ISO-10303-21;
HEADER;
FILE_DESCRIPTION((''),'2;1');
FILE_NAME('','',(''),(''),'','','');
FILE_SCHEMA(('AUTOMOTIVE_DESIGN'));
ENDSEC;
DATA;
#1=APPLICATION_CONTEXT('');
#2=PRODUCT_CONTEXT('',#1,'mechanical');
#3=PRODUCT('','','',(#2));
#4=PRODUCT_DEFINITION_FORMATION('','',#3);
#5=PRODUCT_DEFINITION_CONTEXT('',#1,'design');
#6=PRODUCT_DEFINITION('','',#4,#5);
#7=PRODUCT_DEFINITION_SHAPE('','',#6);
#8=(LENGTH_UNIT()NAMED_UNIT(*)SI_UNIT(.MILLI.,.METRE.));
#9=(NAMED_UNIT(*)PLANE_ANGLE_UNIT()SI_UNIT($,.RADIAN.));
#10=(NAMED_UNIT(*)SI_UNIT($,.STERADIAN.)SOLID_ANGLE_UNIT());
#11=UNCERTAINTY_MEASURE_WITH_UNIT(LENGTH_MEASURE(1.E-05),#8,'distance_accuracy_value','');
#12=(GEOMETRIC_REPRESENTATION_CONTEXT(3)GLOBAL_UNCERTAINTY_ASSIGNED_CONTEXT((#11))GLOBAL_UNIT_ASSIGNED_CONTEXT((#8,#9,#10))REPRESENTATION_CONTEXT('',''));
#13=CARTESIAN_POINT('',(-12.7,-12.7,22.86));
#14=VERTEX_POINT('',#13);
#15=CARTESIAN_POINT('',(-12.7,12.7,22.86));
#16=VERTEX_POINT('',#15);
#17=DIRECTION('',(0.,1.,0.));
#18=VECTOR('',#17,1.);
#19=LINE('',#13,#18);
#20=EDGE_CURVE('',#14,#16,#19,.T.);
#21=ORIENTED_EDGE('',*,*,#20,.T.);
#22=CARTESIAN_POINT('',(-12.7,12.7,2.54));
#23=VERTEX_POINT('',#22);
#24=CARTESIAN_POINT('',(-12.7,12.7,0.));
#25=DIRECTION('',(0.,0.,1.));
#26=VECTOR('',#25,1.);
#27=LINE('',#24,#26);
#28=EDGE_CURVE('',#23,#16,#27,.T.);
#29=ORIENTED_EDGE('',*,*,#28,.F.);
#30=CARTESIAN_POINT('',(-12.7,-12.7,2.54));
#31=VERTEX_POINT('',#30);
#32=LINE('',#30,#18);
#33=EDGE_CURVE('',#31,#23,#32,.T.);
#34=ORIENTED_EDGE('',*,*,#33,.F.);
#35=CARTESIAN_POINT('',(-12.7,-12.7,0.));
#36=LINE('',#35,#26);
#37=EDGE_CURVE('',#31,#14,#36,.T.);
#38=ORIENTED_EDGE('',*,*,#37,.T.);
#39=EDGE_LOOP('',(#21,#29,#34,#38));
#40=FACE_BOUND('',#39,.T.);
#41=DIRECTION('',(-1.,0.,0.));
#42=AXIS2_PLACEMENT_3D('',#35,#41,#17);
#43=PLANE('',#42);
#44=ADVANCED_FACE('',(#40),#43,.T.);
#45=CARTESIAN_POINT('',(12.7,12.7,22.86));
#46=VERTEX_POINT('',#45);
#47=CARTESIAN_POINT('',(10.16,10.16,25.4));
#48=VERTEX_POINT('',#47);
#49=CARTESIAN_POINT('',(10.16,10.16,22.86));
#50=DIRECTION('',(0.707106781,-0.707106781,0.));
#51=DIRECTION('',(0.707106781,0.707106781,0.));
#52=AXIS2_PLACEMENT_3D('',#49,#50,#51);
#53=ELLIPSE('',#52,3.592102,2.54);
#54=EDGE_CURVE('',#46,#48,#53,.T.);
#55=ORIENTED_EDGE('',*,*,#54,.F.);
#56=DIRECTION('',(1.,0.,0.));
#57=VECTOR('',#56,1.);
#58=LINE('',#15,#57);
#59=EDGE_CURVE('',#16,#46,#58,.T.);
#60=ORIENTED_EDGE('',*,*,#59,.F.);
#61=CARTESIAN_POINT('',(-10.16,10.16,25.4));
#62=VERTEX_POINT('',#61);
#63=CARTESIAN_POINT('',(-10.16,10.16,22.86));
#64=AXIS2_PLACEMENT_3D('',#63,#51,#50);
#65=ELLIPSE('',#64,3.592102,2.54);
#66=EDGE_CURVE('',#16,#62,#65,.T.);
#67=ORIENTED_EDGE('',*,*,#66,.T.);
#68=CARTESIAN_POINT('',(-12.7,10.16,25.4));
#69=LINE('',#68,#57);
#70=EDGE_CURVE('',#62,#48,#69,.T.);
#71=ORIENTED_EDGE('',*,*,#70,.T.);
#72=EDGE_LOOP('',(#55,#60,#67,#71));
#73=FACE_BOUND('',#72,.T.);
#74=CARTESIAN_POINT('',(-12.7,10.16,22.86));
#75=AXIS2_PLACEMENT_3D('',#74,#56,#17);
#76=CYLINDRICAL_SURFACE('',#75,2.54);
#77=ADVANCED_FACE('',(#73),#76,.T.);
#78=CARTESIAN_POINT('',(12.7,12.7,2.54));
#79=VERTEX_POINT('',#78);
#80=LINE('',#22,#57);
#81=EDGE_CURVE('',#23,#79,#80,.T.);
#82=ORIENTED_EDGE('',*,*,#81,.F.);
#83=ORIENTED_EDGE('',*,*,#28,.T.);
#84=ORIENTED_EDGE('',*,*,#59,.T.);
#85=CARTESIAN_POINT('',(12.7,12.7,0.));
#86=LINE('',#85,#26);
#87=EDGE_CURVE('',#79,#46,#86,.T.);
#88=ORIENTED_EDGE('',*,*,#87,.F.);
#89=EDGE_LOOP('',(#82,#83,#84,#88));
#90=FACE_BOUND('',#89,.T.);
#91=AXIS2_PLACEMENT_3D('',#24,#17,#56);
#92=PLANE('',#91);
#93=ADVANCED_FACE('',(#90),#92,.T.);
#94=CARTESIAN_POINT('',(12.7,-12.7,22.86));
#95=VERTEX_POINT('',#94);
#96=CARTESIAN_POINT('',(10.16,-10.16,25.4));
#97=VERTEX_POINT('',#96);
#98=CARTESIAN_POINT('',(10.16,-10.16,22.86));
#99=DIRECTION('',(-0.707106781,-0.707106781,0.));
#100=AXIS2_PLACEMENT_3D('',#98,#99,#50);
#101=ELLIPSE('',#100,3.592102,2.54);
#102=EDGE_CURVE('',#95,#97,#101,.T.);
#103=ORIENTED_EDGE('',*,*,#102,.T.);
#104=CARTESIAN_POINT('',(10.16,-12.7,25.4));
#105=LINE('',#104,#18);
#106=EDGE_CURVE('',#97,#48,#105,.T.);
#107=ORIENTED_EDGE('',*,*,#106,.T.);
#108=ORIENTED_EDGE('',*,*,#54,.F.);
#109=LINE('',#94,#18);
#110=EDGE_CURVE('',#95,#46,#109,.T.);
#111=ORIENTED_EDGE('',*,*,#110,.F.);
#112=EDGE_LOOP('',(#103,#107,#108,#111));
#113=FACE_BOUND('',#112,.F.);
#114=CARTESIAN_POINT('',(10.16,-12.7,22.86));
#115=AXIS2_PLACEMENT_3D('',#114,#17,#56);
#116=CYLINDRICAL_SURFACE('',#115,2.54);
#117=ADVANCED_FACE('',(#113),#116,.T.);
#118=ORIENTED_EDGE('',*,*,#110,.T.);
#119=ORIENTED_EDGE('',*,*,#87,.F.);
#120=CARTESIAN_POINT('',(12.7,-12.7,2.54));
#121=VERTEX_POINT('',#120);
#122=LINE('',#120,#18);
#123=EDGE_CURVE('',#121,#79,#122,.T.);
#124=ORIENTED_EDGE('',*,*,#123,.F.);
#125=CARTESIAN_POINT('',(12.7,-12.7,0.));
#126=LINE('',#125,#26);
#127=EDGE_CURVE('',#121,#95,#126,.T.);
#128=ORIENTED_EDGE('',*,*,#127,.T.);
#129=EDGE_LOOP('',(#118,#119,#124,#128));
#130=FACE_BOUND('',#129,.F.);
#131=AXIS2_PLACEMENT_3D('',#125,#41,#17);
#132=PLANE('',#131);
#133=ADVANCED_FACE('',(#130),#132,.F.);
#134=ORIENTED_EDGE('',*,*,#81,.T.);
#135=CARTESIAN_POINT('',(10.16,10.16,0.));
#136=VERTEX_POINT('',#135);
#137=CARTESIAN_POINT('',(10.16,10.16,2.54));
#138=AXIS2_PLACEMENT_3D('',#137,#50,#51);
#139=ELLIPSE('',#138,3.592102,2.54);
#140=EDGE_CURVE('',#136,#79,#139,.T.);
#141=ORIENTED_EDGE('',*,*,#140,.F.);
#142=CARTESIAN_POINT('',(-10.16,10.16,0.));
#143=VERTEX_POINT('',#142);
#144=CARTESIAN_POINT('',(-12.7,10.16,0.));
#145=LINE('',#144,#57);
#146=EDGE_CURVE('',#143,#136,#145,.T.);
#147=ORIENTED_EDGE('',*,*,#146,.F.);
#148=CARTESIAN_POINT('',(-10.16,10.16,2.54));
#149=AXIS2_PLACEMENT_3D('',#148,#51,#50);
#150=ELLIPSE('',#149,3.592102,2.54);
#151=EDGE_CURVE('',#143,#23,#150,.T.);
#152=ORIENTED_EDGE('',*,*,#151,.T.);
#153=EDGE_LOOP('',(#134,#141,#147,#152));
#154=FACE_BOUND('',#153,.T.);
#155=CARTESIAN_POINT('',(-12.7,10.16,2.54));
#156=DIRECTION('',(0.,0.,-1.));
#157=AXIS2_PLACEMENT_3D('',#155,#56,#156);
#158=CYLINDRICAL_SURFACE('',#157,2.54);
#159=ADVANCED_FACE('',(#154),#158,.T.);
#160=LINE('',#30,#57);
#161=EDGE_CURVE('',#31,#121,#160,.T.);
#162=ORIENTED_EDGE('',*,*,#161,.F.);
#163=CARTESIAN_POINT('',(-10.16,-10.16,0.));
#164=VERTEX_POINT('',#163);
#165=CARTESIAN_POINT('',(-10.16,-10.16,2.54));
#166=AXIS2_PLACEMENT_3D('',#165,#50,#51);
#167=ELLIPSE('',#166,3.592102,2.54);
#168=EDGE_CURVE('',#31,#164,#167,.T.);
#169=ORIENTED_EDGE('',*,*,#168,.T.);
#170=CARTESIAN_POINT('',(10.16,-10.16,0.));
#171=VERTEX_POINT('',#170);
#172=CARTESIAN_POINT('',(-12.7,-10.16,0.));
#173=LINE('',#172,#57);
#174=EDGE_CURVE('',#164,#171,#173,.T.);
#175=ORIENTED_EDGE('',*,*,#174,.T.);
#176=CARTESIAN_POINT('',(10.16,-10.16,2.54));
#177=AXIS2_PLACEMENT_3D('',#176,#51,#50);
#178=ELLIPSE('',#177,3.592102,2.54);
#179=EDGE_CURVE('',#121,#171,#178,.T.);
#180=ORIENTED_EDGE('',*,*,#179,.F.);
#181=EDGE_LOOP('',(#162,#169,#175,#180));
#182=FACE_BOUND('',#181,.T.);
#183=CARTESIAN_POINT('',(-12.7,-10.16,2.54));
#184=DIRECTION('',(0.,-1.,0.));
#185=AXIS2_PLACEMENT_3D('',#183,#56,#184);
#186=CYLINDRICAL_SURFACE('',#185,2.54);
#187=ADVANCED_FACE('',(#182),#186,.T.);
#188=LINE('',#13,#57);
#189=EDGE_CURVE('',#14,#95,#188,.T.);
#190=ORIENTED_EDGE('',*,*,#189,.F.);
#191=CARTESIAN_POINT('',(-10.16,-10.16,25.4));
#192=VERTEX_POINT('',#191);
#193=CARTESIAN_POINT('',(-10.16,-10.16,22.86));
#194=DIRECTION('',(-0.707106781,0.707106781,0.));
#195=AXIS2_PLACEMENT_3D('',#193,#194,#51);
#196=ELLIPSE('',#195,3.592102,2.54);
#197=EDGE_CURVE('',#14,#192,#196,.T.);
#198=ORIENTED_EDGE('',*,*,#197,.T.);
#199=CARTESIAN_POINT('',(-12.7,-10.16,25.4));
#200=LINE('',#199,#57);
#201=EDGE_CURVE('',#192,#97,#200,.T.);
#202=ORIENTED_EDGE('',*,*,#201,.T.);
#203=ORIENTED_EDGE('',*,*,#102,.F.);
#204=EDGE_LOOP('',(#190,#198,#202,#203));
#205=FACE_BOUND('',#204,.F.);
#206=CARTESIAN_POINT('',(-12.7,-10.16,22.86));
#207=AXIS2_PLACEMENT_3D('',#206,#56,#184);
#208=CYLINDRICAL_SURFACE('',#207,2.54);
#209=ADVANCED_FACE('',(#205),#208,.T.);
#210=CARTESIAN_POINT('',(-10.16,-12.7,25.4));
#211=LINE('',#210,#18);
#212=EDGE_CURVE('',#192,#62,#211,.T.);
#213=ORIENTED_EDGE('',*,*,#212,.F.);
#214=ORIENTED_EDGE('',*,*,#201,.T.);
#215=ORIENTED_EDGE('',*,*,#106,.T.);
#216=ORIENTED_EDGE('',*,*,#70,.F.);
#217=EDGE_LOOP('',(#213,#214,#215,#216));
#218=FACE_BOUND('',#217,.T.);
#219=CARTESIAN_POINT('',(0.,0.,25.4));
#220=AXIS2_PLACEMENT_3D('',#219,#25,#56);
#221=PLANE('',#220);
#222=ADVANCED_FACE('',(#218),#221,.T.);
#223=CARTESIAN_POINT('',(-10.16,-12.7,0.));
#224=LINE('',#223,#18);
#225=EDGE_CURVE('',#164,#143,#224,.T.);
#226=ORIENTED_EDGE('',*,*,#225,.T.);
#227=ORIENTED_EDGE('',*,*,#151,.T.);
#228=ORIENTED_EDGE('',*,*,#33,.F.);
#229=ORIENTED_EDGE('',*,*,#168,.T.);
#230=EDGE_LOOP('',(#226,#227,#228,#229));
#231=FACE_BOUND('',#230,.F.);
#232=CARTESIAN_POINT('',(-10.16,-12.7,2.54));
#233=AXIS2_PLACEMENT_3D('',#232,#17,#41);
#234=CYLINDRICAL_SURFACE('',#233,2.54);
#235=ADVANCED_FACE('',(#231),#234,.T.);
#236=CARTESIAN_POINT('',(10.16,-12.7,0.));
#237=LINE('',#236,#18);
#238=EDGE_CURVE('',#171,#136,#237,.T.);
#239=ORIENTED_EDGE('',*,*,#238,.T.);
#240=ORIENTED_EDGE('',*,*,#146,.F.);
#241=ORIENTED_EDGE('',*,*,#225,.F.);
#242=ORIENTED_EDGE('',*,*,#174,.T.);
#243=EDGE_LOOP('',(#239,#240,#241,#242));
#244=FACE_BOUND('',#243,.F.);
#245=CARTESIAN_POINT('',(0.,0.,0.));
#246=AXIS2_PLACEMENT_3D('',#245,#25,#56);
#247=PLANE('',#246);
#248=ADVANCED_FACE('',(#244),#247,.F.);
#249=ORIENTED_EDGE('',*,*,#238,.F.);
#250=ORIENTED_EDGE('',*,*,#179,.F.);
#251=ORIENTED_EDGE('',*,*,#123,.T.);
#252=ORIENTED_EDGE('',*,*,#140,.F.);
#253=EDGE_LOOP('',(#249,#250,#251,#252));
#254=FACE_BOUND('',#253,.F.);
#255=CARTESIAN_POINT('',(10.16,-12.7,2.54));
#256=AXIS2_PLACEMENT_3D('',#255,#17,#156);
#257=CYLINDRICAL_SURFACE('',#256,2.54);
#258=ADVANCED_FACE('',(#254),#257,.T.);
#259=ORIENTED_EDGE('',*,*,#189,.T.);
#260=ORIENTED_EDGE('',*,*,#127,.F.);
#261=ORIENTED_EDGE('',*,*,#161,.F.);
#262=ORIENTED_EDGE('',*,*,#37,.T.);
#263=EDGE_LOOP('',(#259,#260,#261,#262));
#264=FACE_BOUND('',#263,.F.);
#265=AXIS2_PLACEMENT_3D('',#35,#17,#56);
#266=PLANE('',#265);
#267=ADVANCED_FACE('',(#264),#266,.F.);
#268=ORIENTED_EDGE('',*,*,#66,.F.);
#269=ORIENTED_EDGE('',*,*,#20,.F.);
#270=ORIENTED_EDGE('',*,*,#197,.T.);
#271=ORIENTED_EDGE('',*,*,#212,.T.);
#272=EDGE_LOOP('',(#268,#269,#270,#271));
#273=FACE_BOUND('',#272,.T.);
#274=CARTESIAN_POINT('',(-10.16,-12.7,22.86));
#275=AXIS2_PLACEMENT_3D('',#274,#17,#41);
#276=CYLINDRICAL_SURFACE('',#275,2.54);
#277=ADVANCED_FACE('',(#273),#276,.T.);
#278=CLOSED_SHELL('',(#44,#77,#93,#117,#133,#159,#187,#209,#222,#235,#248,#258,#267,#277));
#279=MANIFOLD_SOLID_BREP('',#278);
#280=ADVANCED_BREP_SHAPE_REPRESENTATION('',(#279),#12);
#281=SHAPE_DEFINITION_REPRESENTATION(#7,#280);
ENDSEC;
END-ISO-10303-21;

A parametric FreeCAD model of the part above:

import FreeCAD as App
import Part
import Sketcher
from FreeCAD import Vector
Q = App.Units.Quantity


def edges_at(feature, points):
    """Names of the edges that pass closest to the given points."""
    edges = feature.Shape.Edges
    near = lambda p: min(range(len(edges)), key=lambda i: edges[i].distToShape(Part.Vertex(*p))[0])
    return sorted({f"Edge{near(p) + 1}" for p in points})

doc = App.newDocument("Part")
body = doc.addObject("PartDesign::Body", "Body")

sketch1 = body.newObject("Sketcher::SketchObject", "Sketch")
sketch1.AttachmentSupport = (doc.getObject("XY_Plane"), [""])
sketch1.MapMode = "FlatFace"
sketch1.addGeometry(Part.LineSegment(Vector(-12.7, 12.7, 0), Vector(-12.7, -12.7, 0)), False)
sketch1.addGeometry(Part.LineSegment(Vector(-12.7, -12.7, 0), Vector(12.7, -12.7, 0)), False)
sketch1.addGeometry(Part.LineSegment(Vector(12.7, -12.7, 0), Vector(12.7, 12.7, 0)), False)
sketch1.addGeometry(Part.LineSegment(Vector(12.7, 12.7, 0), Vector(-12.7, 12.7, 0)), False)
sketch1.addConstraint(Sketcher.Constraint("Coincident", 0, 2, 1, 1))
sketch1.addConstraint(Sketcher.Constraint("Coincident", 1, 2, 2, 1))
sketch1.addConstraint(Sketcher.Constraint("Coincident", 2, 2, 3, 1))
sketch1.addConstraint(Sketcher.Constraint("Coincident", 3, 2, 0, 1))
sketch1.addConstraint(Sketcher.Constraint("Vertical", 0))
sketch1.addConstraint(Sketcher.Constraint("Horizontal", 1))
sketch1.addConstraint(Sketcher.Constraint("Vertical", 2))
sketch1.addConstraint(Sketcher.Constraint("Horizontal", 3))
sketch1.addConstraint(Sketcher.Constraint("Symmetric", 0, 2, 2, 2, -1, 1))
sketch1.addConstraint(Sketcher.Constraint("Equal", 3, 0))
sketch1.addConstraint(Sketcher.Constraint("DistanceX", 1, 1, 1, 2, Q("1 in")))
pad1 = body.newObject("PartDesign::Pad", "Pad")
pad1.Profile = sketch1
pad1.Length = Q("1 in")
doc.recompute()

fillet = body.newObject("PartDesign::Fillet", "Fillet")
fillet.Base = (pad1, edges_at(pad1, [
    (0, 12.7, 25.4),
    (-12.7, 0, 25.4),
    (0, -12.7, 25.4),
    (12.7, 0, 25.4),
]))
fillet.Radius = Q("0.1 in")
doc.recompute()

fillet2 = body.newObject("PartDesign::Fillet", "Fillet001")
fillet2.Base = (fillet, edges_at(fillet, [
    (0, 12.7, 0),
    (-12.7, 0, 0),
    (0, -12.7, 0),
    (12.7, 0, 0),
]))
fillet2.Radius = Q("0.1 in")

doc.recompute()
